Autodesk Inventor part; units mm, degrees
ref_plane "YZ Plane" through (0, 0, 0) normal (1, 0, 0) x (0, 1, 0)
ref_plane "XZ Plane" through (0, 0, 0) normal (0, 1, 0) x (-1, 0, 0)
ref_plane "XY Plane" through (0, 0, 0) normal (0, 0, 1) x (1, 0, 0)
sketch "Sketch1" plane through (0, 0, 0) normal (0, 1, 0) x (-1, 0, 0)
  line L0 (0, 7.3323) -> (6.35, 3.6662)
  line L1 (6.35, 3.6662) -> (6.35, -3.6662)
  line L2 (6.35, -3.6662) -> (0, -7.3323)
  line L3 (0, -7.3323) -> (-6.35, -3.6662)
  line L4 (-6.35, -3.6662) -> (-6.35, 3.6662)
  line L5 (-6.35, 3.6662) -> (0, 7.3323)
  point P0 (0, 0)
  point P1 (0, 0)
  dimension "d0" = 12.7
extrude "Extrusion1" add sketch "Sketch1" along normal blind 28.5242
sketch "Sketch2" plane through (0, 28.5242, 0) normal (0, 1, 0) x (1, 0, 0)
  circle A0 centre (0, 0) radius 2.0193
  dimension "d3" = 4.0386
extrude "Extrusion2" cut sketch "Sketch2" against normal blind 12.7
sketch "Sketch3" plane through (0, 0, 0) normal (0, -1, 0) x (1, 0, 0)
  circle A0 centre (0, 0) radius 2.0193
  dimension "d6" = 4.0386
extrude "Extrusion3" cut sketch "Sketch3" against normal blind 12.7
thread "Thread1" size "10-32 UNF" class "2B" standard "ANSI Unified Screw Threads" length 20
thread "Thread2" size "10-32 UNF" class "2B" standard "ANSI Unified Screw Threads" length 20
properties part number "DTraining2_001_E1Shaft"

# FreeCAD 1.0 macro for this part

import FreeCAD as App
import Part
import Sketcher

V = App.Vector
Q = App.Units.Quantity

doc = App.newDocument("Part")
params = doc.addObject("Spreadsheet::Sheet", "Params")
for row, (alias, value) in enumerate([
    ("pad1_length", "1.123 in"),
    ("sketch2_diameter", "0.159 in"),
    ("pocket1_length", "0.5 in"),
    ("sketch3_diameter", "0.159 in"),
    ("pocket2_length", "0.5 in"),
], start=1):
    params.set(f"A{row}", alias)
    params.set(f"B{row}", "=" + value)
    params.setAlias(f"B{row}", alias)

body = doc.addObject("PartDesign::Body", "Body")

# Sketch on XZ plane
sketch1 = body.newObject("Sketcher::SketchObject", "Sketch")
sketch1.AttachmentSupport = (doc.getObject("XZ_Plane"), [""])
sketch1.MapMode = "FlatFace"
sketch1.addGeometry([
    Part.LineSegment(V(-6, 4, 0), V(0, 7, 0)),  # 0
    Part.LineSegment(V(0, 7, 0), V(6, 4, 0)),  # 1
    Part.LineSegment(V(6, 4, 0), V(6, -4, 0)),  # 2
    Part.LineSegment(V(6, -4, 0), V(0, -7, 0)),  # 3
    Part.LineSegment(V(0, -7, 0), V(-6, -4, 0)),  # 4
    Part.LineSegment(V(-6, -4, 0), V(-6, 4, 0)),  # 5
], False)
sketch1.addConstraint([
    Sketcher.Constraint("Coincident", 0, 2, 1, 1),
    Sketcher.Constraint("Coincident", 1, 2, 2, 1),
    Sketcher.Constraint("Coincident", 2, 2, 3, 1),
    Sketcher.Constraint("Coincident", 3, 2, 4, 1),
    Sketcher.Constraint("Coincident", 4, 2, 5, 1),
    Sketcher.Constraint("Coincident", 5, 2, 0, 1),
    Sketcher.Constraint("Vertical", 2),
    Sketcher.Constraint("Vertical", 5),
    Sketcher.Constraint("Symmetric", 0, 2, 3, 2, -1, 1),
    Sketcher.Constraint("Symmetric", 1, 2, 4, 2, -1, 1),
    Sketcher.Constraint("PointOnObject", 0, 2, -2),
    Sketcher.Constraint("Parallel", 0, 3),
    Sketcher.Constraint("Horizontal", 2, 2, 4, 2),
    Sketcher.Constraint("DistanceX", 4, 2, 2, 2, Q("0.5 in")),
    Sketcher.Constraint("Angle", 0, Q("29.9995 deg")),
    Sketcher.Constraint("DistanceY", 2, 2, 0, 2, Q("0.433 in")),
])
pad1 = body.newObject("PartDesign::Pad", "Pad")
pad1.Profile = sketch1
pad1.setExpression("Length", "Params.pad1_length")
pad1.Reversed = True

# Sketch on XZ plane
sketch2 = body.newObject("Sketcher::SketchObject", "Sketch001")
sketch2.AttachmentSupport = (doc.getObject("XZ_Plane"), [""])
sketch2.MapMode = "FlatFace"
sketch2.AttachmentOffset = App.Placement(V(0, 0, -1.123 * 25.4), App.Rotation())
sketch2.addGeometry(Part.Circle(V(0, 0, 0), V(0, 0, 1), 2), False)
sketch2.addConstraint([
    Sketcher.Constraint("Coincident", 0, 3, -1, 1),
    Sketcher.Constraint("Diameter", 0, Q("0.159 in")),
])
sketch2.setExpression("Constraints[1]", "Params.sketch2_diameter")
pocket1 = body.newObject("PartDesign::Pocket", "Pocket")
pocket1.Profile = sketch2
pocket1.setExpression("Length", "Params.pocket1_length")
pocket1.Reversed = True

# Sketch on XZ plane
sketch3 = body.newObject("Sketcher::SketchObject", "Sketch002")
sketch3.AttachmentSupport = (doc.getObject("XZ_Plane"), [""])
sketch3.MapMode = "FlatFace"
sketch3.addGeometry(Part.Circle(V(0, 0, 0), V(0, 0, 1), 2), False)
sketch3.addConstraint([
    Sketcher.Constraint("Coincident", 0, 3, -1, 1),
    Sketcher.Constraint("Diameter", 0, Q("0.159 in")),
])
sketch3.setExpression("Constraints[1]", "Params.sketch3_diameter")
pocket2 = body.newObject("PartDesign::Pocket", "Pocket001")
pocket2.Profile = sketch3
pocket2.setExpression("Length", "Params.pocket2_length")

doc.recompute()
